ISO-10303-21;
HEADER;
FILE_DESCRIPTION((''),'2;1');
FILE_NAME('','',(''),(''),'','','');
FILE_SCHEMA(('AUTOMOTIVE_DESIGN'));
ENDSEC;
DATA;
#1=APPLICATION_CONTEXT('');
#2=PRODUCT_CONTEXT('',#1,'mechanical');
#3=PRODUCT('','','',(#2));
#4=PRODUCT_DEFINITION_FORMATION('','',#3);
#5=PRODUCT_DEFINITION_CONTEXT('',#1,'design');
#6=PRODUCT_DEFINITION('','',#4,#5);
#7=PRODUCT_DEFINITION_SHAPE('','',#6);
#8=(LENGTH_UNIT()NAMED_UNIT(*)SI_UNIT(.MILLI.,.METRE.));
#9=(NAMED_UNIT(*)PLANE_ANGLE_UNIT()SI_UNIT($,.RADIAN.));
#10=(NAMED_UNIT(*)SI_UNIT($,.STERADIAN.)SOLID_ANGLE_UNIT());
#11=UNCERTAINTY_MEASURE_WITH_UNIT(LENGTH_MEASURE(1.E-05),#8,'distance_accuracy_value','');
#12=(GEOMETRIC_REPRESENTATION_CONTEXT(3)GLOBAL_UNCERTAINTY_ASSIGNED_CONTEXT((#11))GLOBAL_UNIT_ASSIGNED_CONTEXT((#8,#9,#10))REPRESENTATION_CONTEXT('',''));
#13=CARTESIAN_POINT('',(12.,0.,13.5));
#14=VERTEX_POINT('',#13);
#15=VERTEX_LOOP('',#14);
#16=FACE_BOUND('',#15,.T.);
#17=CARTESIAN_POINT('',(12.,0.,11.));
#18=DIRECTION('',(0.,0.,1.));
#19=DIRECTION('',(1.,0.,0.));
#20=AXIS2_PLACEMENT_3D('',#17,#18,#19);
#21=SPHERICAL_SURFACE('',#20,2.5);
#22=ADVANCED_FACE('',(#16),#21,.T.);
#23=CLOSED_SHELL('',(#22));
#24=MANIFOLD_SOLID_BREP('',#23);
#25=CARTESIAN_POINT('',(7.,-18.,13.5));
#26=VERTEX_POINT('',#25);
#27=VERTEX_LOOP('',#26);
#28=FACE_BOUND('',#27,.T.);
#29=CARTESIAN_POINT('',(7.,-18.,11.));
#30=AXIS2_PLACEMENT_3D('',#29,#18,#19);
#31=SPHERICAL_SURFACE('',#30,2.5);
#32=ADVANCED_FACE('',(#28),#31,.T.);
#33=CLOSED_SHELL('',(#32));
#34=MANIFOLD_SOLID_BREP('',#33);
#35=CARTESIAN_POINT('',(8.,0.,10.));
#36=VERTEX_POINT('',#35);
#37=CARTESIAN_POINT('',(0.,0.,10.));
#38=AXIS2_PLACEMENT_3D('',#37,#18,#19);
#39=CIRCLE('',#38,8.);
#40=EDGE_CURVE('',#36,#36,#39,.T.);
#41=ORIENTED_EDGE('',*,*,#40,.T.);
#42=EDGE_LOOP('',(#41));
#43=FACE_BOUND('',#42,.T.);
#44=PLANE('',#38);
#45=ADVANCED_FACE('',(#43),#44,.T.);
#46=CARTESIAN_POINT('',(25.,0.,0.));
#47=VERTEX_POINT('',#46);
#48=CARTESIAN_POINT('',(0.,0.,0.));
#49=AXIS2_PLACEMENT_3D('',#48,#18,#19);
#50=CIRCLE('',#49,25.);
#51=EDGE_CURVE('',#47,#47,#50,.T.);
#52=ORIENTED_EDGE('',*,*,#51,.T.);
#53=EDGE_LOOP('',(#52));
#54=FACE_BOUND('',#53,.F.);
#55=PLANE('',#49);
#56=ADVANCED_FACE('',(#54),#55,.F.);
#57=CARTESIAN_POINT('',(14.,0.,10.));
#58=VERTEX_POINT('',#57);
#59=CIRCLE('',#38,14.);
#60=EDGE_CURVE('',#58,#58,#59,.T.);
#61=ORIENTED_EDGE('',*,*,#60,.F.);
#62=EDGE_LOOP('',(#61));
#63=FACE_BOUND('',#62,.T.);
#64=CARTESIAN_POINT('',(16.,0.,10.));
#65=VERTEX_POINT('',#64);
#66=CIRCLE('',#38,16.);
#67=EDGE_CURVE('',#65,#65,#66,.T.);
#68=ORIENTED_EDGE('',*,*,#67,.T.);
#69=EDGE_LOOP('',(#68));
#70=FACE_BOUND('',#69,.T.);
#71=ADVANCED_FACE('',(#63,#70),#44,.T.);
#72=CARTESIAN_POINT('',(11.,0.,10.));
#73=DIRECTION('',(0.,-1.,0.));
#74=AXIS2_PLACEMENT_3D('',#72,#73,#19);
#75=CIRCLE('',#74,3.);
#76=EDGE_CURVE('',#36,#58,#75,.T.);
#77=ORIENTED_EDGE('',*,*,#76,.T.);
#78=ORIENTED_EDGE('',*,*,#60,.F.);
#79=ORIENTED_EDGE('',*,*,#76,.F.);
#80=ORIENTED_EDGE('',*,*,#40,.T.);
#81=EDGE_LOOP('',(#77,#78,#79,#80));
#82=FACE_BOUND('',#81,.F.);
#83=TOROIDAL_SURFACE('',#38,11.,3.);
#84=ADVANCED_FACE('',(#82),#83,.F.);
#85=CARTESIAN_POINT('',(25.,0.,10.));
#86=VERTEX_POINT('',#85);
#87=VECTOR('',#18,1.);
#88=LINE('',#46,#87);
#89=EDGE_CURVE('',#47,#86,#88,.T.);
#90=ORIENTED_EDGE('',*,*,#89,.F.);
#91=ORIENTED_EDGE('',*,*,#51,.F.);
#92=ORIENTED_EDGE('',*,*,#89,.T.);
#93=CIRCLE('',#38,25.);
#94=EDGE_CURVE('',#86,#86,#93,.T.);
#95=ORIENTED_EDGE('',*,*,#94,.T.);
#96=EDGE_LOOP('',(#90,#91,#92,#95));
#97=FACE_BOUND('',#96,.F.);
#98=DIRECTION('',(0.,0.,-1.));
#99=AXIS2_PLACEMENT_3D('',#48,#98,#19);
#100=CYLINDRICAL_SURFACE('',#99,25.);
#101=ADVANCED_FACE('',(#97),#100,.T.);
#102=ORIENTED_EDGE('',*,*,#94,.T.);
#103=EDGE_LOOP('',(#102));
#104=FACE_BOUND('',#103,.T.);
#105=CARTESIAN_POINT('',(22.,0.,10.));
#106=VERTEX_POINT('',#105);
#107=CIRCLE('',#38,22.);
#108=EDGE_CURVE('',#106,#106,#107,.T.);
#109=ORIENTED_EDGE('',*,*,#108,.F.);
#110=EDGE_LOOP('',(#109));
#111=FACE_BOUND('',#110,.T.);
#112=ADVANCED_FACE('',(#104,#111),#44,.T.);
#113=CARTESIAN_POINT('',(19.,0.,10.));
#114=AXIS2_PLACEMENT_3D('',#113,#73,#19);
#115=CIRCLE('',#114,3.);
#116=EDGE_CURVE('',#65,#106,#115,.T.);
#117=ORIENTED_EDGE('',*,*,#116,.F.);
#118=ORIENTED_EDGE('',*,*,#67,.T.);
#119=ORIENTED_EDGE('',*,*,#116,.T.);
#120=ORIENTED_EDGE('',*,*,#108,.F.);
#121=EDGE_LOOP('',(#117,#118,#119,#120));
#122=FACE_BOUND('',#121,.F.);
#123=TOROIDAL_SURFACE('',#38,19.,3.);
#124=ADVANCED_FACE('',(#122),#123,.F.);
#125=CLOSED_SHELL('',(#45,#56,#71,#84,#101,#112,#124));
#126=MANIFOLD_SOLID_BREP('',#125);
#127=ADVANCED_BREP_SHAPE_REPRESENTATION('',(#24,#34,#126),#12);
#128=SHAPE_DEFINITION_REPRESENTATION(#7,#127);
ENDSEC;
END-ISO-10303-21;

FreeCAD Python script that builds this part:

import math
import FreeCAD as App
import Part
import Sketcher

doc = App.newDocument("Part")
params = doc.addObject("Spreadsheet::Sheet", "Params")
for row, (alias, value) in enumerate([
    ("sketch1_diameter", "6 mm"),
    ("revolution_angle", "360 deg"),
    ("sketch2_diameter", "6 mm"),
    ("revolution2_angle", "360 deg"),
    ("sketch3_diameter", "50 mm"),
    ("pad1_length", "10 mm"),
    ("sketch4_radius", "2.5 mm"),
    ("revolution3_angle", "360 deg"),
    ("sketch5_radius", "2.5 mm"),
    ("revolution4_angle", "360 deg"),
], start=1):
    params.set(f"A{row}", alias)
    params.set(f"B{row}", "=" + value)
    params.setAlias(f"B{row}", alias)

body = doc.addObject("PartDesign::Body", "Body")

sketch1 = body.newObject("Sketcher::SketchObject", "Sketch")
sketch1.AttachmentSupport = (doc.getObject("XZ_Plane"), [""])
sketch1.MapMode = "FlatFace"
sketch1.addGeometry(Part.Circle(App.Vector(19, 10, 0), App.Vector(0, 0, 1), 3), False)
sketch1.addConstraint([
    Sketcher.Constraint("Diameter", 0, 6.0),
    Sketcher.Constraint("DistanceX", -1, 1, 0, 3, 19.0),
    Sketcher.Constraint("DistanceY", -1, 1, 0, 3, 10.0),
])
sketch1.setExpression("Constraints[0]", "Params.sketch1_diameter")
revolution = body.newObject("PartDesign::Revolution", "Revolution")
revolution.Profile = sketch1
revolution.ReferenceAxis = (sketch1, ["V_Axis"])
revolution.setExpression("Angle", "Params.revolution_angle")
body2 = doc.addObject("PartDesign::Body", "Body001")
body2.AllowCompound = True

sketch2 = body2.newObject("Sketcher::SketchObject", "Sketch001")
sketch2.AttachmentSupport = (doc.getObject("XZ_Plane001"), [""])
sketch2.MapMode = "FlatFace"
sketch2.addGeometry(Part.Circle(App.Vector(11, 10, 0), App.Vector(0, 0, 1), 3), False)
sketch2.addConstraint([
    Sketcher.Constraint("Diameter", 0, 6.0),
    Sketcher.Constraint("DistanceX", -1, 1, 0, 3, 11.0),
    Sketcher.Constraint("DistanceY", -1, 1, 0, 3, 10.0),
])
sketch2.setExpression("Constraints[0]", "Params.sketch2_diameter")
revolution2 = body2.newObject("PartDesign::Revolution", "Revolution001")
revolution2.Profile = sketch2
revolution2.ReferenceAxis = (sketch2, ["V_Axis"])
revolution2.setExpression("Angle", "Params.revolution2_angle")
doc.recompute()

boolean = body2.newObject("PartDesign::Boolean", "Boolean")
boolean.Type = "Fuse"
boolean.addObjects([body])
body3 = doc.addObject("PartDesign::Body", "Body002")

sketch3 = body3.newObject("Sketcher::SketchObject", "Sketch002")
sketch3.AttachmentSupport = (doc.getObject("XY_Plane002"), [""])
sketch3.MapMode = "FlatFace"
sketch3.addGeometry(Part.Circle(App.Vector(0, 0, 0), App.Vector(0, 0, 1), 25), False)
sketch3.addConstraint([
    Sketcher.Constraint("Coincident", 0, 3, -1, 1),
    Sketcher.Constraint("Diameter", 0, 50.0),
])
sketch3.setExpression("Constraints[1]", "Params.sketch3_diameter")
pad1 = body3.newObject("PartDesign::Pad", "Pad")
pad1.Profile = sketch3
pad1.setExpression("Length", "Params.pad1_length")
doc.recompute()

boolean2 = body3.newObject("PartDesign::Boolean", "Boolean001")
boolean2.Type = "Cut"
boolean2.addObjects([body2])
body4 = doc.addObject("PartDesign::Body", "Body003")

sketch4 = body4.newObject("Sketcher::SketchObject", "Sketch003")
sketch4.AttachmentSupport = (doc.getObject("XZ_Plane003"), [""])
sketch4.MapMode = "FlatFace"
sketch4.addGeometry([
    Part.ArcOfCircle(Part.Circle(App.Vector(12, 11, 0), App.Vector(0, 0, 1), 2.5), math.radians(-90), math.radians(90)),
    Part.LineSegment(App.Vector(12, 13.5, 0), App.Vector(12, 8.5, 0)),
], False)
sketch4.addGeometry(Part.LineSegment(App.Vector(12, 8.5, 0), App.Vector(12, 13.5, 0)), True)
sketch4.addConstraint([
    Sketcher.Constraint("Coincident", 0, 1, 1, 2),
    Sketcher.Constraint("Coincident", 1, 1, 0, 2),
    Sketcher.Constraint("Vertical", 1),
    Sketcher.Constraint("Vertical", 2),
    Sketcher.Constraint("Coincident", 2, 1, 0, 1),
    Sketcher.Constraint("Equal", 1, 2),
    Sketcher.Constraint("Radius", 0, 2.5),
    Sketcher.Constraint("DistanceX", -1, 1, 0, 3, 12.0),
    Sketcher.Constraint("DistanceY", -1, 1, 0, 3, 11.0),
    Sketcher.Constraint("DistanceX", -1, 1, 0, 1, 12.0),
])
sketch4.setExpression("Constraints[6]", "Params.sketch4_radius")
revolution3 = body4.newObject("PartDesign::Revolution", "Revolution002")
revolution3.Profile = sketch4
revolution3.ReferenceAxis = (sketch4, ["Axis0"])
revolution3.setExpression("Angle", "Params.revolution3_angle")
body5 = doc.addObject("PartDesign::Body", "Body004")

sketch5 = body5.newObject("Sketcher::SketchObject", "Sketch004")
sketch5.AttachmentSupport = (doc.getObject("XZ_Plane004"), [""])
sketch5.MapMode = "FlatFace"
sketch5.AttachmentOffset = App.Placement(App.Vector(0, 0, 18), App.Rotation())
sketch5.addGeometry([
    Part.ArcOfCircle(Part.Circle(App.Vector(7, 11, 0), App.Vector(0, 0, 1), 2.5), math.radians(-90), math.radians(90)),
    Part.LineSegment(App.Vector(7, 13.5, 0), App.Vector(7, 8.5, 0)),
], False)
sketch5.addGeometry(Part.LineSegment(App.Vector(7, 8.5, 0), App.Vector(7, 13.5, 0)), True)
sketch5.addConstraint([
    Sketcher.Constraint("Coincident", 0, 1, 1, 2),
    Sketcher.Constraint("Coincident", 1, 1, 0, 2),
    Sketcher.Constraint("Vertical", 1),
    Sketcher.Constraint("Vertical", 2),
    Sketcher.Constraint("Coincident", 2, 1, 0, 1),
    Sketcher.Constraint("Equal", 1, 2),
    Sketcher.Constraint("Radius", 0, 2.5),
    Sketcher.Constraint("DistanceX", -1, 1, 0, 3, 7.0),
    Sketcher.Constraint("DistanceY", -1, 1, 0, 3, 11.0),
    Sketcher.Constraint("DistanceX", -1, 1, 0, 1, 7.0),
])
sketch5.setExpression("Constraints[6]", "Params.sketch5_radius")
revolution4 = body5.newObject("PartDesign::Revolution", "Revolution003")
revolution4.Profile = sketch5
revolution4.ReferenceAxis = (sketch5, ["Axis0"])
revolution4.setExpression("Angle", "Params.revolution4_angle")

doc.recompute()
